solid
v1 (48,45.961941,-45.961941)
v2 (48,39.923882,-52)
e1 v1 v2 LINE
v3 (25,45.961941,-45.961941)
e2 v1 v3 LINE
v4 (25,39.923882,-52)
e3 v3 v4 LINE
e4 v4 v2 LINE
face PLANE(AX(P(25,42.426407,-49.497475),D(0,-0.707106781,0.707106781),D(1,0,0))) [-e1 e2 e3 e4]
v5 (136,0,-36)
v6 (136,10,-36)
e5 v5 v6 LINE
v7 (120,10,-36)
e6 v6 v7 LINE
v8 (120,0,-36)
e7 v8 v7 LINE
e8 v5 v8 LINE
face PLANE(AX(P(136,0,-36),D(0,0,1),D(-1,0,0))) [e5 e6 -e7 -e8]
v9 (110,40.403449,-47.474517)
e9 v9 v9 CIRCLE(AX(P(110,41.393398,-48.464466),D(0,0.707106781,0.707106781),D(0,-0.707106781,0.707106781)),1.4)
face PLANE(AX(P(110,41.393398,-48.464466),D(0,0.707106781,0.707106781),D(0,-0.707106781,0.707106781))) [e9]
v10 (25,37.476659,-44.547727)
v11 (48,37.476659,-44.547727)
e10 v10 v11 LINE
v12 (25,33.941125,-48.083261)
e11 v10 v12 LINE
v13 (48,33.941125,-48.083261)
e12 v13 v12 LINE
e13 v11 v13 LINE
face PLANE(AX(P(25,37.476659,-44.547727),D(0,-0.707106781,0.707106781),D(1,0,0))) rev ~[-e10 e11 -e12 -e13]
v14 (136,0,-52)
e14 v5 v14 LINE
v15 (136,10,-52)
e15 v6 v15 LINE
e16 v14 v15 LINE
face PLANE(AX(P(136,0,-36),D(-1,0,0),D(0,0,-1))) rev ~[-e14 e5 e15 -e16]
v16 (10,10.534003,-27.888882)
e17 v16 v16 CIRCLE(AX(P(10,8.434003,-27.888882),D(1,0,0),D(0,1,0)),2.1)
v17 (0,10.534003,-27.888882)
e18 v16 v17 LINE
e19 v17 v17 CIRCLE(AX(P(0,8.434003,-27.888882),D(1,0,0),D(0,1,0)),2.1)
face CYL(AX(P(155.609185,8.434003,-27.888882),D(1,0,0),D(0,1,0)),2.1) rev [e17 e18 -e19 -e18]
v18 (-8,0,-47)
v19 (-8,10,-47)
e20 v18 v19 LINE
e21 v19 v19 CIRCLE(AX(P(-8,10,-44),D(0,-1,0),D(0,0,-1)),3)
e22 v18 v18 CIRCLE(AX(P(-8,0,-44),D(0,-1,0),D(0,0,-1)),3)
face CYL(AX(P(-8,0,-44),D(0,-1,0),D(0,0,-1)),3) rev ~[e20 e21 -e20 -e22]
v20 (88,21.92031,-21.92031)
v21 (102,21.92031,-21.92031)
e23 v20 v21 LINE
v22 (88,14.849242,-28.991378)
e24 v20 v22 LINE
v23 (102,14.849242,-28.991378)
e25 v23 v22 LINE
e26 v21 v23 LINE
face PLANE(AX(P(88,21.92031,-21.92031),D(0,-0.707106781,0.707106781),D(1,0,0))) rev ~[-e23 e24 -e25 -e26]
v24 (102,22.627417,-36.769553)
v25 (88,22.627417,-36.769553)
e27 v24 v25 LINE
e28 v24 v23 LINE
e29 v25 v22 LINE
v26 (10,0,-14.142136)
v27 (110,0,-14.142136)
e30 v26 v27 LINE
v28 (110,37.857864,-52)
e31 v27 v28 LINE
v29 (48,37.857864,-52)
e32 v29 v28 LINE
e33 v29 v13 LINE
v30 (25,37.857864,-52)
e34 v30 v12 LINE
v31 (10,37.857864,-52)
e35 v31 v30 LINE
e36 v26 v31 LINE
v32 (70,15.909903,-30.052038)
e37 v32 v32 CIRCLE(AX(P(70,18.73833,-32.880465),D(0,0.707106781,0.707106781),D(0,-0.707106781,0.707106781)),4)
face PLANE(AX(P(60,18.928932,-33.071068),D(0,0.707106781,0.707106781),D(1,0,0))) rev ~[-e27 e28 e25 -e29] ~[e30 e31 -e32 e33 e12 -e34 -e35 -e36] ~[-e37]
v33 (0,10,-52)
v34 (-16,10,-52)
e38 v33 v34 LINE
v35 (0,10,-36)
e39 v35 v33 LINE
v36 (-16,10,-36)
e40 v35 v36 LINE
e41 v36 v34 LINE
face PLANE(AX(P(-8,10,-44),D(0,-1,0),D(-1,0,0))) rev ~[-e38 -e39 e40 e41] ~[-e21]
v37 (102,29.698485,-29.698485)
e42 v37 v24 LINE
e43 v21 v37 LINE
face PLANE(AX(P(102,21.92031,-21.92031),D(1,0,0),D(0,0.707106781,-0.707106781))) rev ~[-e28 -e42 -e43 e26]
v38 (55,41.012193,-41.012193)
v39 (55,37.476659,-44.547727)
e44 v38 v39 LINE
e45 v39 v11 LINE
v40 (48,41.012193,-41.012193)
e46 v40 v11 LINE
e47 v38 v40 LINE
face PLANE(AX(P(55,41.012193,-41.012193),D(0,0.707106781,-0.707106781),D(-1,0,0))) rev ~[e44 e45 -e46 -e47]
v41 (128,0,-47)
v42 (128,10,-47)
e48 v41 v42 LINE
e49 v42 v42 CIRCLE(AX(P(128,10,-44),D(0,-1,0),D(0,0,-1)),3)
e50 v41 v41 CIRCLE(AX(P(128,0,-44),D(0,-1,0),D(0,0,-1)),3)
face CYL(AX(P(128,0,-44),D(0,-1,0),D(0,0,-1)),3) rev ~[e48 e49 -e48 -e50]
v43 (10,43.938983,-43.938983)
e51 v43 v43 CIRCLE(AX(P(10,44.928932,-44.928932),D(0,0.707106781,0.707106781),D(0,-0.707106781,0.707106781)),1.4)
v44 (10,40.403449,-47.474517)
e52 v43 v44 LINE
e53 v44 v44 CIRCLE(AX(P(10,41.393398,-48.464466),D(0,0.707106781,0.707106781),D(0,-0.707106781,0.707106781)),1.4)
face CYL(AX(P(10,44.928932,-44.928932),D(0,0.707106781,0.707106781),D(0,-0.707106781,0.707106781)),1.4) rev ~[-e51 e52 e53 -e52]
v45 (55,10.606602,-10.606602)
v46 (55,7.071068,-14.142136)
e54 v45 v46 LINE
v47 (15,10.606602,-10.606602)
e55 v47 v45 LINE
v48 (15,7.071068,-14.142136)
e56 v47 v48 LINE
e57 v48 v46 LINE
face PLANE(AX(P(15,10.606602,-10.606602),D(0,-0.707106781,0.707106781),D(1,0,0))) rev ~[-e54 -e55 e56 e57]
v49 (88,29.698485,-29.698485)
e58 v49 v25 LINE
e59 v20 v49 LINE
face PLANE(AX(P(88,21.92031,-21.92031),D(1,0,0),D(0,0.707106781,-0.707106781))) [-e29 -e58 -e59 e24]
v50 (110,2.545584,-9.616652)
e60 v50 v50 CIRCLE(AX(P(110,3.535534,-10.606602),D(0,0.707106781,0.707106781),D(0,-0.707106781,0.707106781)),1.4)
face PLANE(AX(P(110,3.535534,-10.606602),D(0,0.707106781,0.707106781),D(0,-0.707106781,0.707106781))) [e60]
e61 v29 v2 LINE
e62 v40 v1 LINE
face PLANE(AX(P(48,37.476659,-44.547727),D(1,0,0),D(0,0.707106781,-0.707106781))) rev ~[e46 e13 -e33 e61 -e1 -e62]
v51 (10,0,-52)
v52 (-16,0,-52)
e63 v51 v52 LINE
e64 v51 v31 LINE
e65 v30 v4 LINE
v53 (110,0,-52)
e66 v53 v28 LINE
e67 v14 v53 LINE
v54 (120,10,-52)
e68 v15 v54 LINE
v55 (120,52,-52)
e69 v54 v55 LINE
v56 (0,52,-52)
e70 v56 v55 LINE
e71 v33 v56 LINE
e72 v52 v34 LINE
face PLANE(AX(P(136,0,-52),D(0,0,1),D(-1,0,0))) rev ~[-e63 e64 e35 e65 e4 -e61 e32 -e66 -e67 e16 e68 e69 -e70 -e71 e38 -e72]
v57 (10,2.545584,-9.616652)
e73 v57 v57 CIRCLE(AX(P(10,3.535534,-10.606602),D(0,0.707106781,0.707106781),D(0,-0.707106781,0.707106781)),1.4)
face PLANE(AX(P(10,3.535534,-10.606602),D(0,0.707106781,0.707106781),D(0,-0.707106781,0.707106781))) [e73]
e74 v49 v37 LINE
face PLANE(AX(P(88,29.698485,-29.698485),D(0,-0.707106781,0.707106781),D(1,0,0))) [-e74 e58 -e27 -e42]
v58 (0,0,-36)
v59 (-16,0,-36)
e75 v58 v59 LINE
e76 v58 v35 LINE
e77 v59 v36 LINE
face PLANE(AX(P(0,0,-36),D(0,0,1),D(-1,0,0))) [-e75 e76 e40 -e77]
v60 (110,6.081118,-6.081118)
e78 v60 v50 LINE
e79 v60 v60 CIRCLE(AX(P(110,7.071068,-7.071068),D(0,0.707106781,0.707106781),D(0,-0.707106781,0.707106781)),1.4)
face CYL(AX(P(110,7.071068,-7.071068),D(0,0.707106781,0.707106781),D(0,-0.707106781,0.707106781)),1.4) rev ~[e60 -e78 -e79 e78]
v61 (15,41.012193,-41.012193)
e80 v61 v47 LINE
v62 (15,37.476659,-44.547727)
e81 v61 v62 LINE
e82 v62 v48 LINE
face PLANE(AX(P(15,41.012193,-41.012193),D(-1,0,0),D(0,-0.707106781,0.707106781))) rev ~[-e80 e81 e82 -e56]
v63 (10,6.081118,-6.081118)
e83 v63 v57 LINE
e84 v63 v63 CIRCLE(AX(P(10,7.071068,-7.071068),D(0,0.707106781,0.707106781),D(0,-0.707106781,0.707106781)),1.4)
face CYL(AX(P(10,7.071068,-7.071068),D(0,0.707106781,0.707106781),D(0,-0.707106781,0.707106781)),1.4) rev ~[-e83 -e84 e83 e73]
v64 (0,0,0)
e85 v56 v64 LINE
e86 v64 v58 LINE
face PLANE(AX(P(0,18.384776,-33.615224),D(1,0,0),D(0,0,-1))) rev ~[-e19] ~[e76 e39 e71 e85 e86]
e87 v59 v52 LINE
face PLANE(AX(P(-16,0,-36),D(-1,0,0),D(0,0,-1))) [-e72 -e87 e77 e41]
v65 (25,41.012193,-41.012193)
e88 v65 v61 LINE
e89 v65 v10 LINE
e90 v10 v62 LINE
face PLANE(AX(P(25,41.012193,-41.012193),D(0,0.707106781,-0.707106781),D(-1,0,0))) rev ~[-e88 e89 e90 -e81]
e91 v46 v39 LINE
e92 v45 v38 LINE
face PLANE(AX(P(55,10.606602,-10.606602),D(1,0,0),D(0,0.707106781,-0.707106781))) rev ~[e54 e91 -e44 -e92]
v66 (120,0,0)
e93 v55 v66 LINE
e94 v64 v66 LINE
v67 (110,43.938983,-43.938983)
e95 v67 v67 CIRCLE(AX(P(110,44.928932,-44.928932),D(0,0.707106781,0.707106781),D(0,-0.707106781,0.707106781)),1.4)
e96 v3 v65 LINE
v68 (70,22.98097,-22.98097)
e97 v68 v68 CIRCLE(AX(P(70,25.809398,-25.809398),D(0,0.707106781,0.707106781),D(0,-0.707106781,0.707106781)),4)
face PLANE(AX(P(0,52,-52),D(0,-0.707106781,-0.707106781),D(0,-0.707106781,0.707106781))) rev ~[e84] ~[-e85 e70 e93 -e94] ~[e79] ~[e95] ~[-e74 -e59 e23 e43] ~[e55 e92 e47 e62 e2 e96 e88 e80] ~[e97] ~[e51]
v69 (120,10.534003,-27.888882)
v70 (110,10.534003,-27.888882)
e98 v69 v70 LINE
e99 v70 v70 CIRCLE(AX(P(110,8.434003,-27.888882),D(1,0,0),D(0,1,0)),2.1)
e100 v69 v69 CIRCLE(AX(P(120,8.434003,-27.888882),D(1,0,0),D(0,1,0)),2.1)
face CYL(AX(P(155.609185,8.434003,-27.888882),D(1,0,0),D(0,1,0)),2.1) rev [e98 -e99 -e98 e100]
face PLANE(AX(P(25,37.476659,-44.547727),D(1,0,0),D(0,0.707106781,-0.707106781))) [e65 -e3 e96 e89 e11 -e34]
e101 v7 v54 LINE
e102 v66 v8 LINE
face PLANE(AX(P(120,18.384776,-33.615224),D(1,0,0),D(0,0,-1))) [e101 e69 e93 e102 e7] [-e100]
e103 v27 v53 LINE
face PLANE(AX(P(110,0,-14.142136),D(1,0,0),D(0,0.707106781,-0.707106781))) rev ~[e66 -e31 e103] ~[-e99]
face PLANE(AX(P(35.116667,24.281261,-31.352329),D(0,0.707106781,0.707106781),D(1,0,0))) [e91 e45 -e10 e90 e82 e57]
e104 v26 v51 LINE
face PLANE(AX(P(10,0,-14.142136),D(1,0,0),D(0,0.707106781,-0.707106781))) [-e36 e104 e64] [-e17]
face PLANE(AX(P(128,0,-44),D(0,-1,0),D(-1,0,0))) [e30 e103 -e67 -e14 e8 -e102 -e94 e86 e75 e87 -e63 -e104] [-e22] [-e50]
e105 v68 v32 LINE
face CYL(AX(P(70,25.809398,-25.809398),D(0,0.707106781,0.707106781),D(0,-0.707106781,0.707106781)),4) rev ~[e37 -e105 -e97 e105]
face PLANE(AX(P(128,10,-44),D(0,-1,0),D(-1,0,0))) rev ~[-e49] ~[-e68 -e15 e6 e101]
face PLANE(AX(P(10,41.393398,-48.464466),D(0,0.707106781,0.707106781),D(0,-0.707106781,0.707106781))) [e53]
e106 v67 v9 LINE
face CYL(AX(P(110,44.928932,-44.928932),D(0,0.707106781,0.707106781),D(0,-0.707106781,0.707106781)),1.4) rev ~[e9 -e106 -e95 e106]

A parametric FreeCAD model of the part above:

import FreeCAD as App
import Part
import Sketcher


def add_polygon(sketch, points):
    """Adds a closed chain of lines whose ends are joined by coincident constraints."""
    first, n = sketch.GeometryCount, len(points)
    for a, b in zip(points, points[1:] + points[:1]):
        sketch.addGeometry(Part.LineSegment(App.Vector(*a, 0), App.Vector(*b, 0)), False)
    for i in range(n):
        sketch.addConstraint(Sketcher.Constraint("Coincident", first + i, 2, first + (i + 1) % n, 1))

doc = App.newDocument("Part")
body = doc.addObject("PartDesign::Body", "Body")

# Sketch on YZ plane
sketch1 = doc.addObject("Sketcher::SketchObject", "Sketch")
body.addObject(sketch1)
sketch1.AttachmentSupport = (doc.YZ_Plane, [""])
sketch1.MapMode = "FlatFace"
add_polygon(sketch1, [(0, 0), (0, -52), (52, -52)])  # lines 0-2
sketch1.addConstraint([
    Sketcher.Constraint("Vertical", 0),
    Sketcher.Constraint("Horizontal", 1),
    Sketcher.Constraint("Coincident", 2, 2, -1, 1),
    Sketcher.Constraint("Equal", 1, 0),
    Sketcher.Constraint("DistanceX", 1, 1, 1, 2, 52.0),
])
pad1 = doc.addObject("PartDesign::Pad", "Pad")
body.addObject(pad1)
pad1.Profile = sketch1
pad1.Length = 120

# Sketch on an angled plane
sketch2 = doc.addObject("Sketcher::SketchObject", "Sketch001")
body.addObject(sketch2)
sketch2.Placement = App.Placement(App.Vector(0, 0, 0), App.Rotation(App.Vector(1, 0, 0), App.Vector(0, 0.707106781, -0.707106781), App.Vector(0, 0.707106781, 0.707106781), "ZXY"))
sketch2.addGeometry(Part.Circle(App.Vector(70, 36.5, 0), App.Vector(0, 0, 1), 4), False)  # 0
add_polygon(sketch2, [(88, 42), (88, 31), (102, 31), (102, 42)])  # lines 1-4
sketch2.addConstraint([
    Sketcher.Constraint("Vertical", 1),
    Sketcher.Constraint("Horizontal", 2),
    Sketcher.Constraint("Vertical", 3),
    Sketcher.Constraint("Horizontal", 4),
    Sketcher.Constraint("Diameter", 0, 8.0),
    Sketcher.Constraint("DistanceX", 2, 1, 2, 2, 14.0),
    Sketcher.Constraint("DistanceY", 1, 2, 1, 1, 11.0),
    Sketcher.Constraint("DistanceX", -1, 1, 0, 3, 70.0),
    Sketcher.Constraint("DistanceX", -1, 1, 1, 2, 88.0),
    Sketcher.Constraint("DistanceY", -1, 1, 1, 2, 31.0),
    Sketcher.Constraint("DistanceY", -1, 1, 0, 3, 36.5),
])
pocket1 = doc.addObject("PartDesign::Pocket", "Pocket")
body.addObject(pocket1)
pocket1.Profile = sketch2
pocket1.Length = 120

# Sketch on an angled plane
sketch3 = doc.addObject("Sketcher::SketchObject", "Sketch002")
body.addObject(sketch3)
sketch3.Placement = App.Placement(App.Vector(0, 0, 0), App.Rotation(App.Vector(1, 0, 0), App.Vector(0, 0.707106781, -0.707106781), App.Vector(0, 0.707106781, 0.707106781), "ZXY"))
add_polygon(sketch3, [(48, 58), (48, 65), (25, 65), (25, 58), (15, 58), (15, 15), (55, 15), (55, 58)])  # lines 0-7
sketch3.addConstraint([
    Sketcher.Constraint("Vertical", 0),
    Sketcher.Constraint("Horizontal", 1),
    Sketcher.Constraint("Vertical", 2),
    Sketcher.Constraint("Horizontal", 3),
    Sketcher.Constraint("Vertical", 4),
    Sketcher.Constraint("Horizontal", 5),
    Sketcher.Constraint("Vertical", 6),
    Sketcher.Constraint("Horizontal", 7),
    Sketcher.Constraint("Horizontal", 3, 2, 6, 2),
    Sketcher.Constraint("Equal", 7, 0),
    Sketcher.Constraint("DistanceX", 1, 2, 1, 1, 23.0),
    Sketcher.Constraint("DistanceX", 3, 2, 3, 1, 10.0),
    Sketcher.Constraint("DistanceX", 5, 1, 5, 2, 40.0),
    Sketcher.Constraint("DistanceY", 4, 2, 4, 1, 43.0),
    Sketcher.Constraint("DistanceX", -1, 1, 0, 2, 48.0),
    Sketcher.Constraint("DistanceY", -1, 1, 0, 2, 65.0),
])
pocket2 = doc.addObject("PartDesign::Pocket", "Pocket001")
body.addObject(pocket2)
pocket2.Profile = sketch3
pocket2.Length = 5

# Sketch on an angled plane
sketch4 = doc.addObject("Sketcher::SketchObject", "Sketch003")
body.addObject(sketch4)
sketch4.Placement = App.Placement(App.Vector(0, -3.535534, -3.535534), App.Rotation(App.Vector(1, 0, 0), App.Vector(0, 0.707106781, -0.707106781), App.Vector(0, 0.707106781, 0.707106781), "ZXY"))
add_polygon(sketch4, [(25, 65), (25, 58), (48, 58), (48, 65)])  # lines 0-3
sketch4.addConstraint([
    Sketcher.Constraint("Vertical", 0),
    Sketcher.Constraint("Horizontal", 1),
    Sketcher.Constraint("Vertical", 2),
    Sketcher.Constraint("Horizontal", 3),
    Sketcher.Constraint("DistanceX", 1, 1, 1, 2, 23.0),
    Sketcher.Constraint("DistanceY", 0, 2, 0, 1, 7.0),
    Sketcher.Constraint("DistanceX", -1, 1, 0, 2, 25.0),
    Sketcher.Constraint("DistanceY", -1, 1, 0, 2, 58.0),
])
pocket3 = doc.addObject("PartDesign::Pocket", "Pocket002")
body.addObject(pocket3)
pocket3.Profile = sketch4
pocket3.Length = 98

# Sketch on an angled plane
sketch5 = doc.addObject("Sketcher::SketchObject", "Sketch004")
body.addObject(sketch5)
sketch5.Placement = App.Placement(App.Vector(0, -7.071068, -7.071068), App.Rotation(App.Vector(1, 0, 0), App.Vector(0, 0.707106781, -0.707106781), App.Vector(0, 0.707106781, 0.707106781), "ZXY"))
add_polygon(sketch5, [(10, 63.539105), (10, 10), (110, 10), (110, 63.539105)])  # lines 0-3
sketch5.addConstraint([
    Sketcher.Constraint("Vertical", 0),
    Sketcher.Constraint("Horizontal", 1),
    Sketcher.Constraint("Vertical", 2),
    Sketcher.Constraint("Horizontal", 3),
    Sketcher.Constraint("DistanceX", 1, 1, 1, 2, 100.0),
    Sketcher.Constraint("DistanceX", -1, 1, 0, 2, 10.0),
    Sketcher.Constraint("DistanceY", -1, 1, 0, 2, 10.0),
    Sketcher.Constraint("DistanceY", 0, 2, 0, 1, 53.539105),
])
pocket4 = doc.addObject("PartDesign::Pocket", "Pocket003")
body.addObject(pocket4)
pocket4.Profile = sketch5
pocket4.Length = 98

# Sketch on an angled plane
sketch6 = doc.addObject("Sketcher::SketchObject", "Sketch005")
body.addObject(sketch6)
sketch6.Placement = App.Placement(App.Vector(0, 0, 0), App.Rotation(App.Vector(1, 0, 0), App.Vector(0, 0.707106781, -0.707106781), App.Vector(0, 0.707106781, 0.707106781), "ZXY"))
sketch6.addGeometry([
    Part.Circle(App.Vector(10, 63.539105, 0), App.Vector(0, 0, 1), 1.4),
    Part.Circle(App.Vector(110, 10, 0), App.Vector(0, 0, 1), 1.4),
    Part.Circle(App.Vector(110, 63.539105, 0), App.Vector(0, 0, 1), 1.4),
    Part.Circle(App.Vector(10, 10, 0), App.Vector(0, 0, 1), 1.4),
], False)
sketch6.addConstraint([
    Sketcher.Constraint("Equal", 0, 1),
    Sketcher.Constraint("Equal", 1, 2),
    Sketcher.Constraint("Equal", 2, 3),
    Sketcher.Constraint("Horizontal", 0, 3, 2, 3),
    Sketcher.Constraint("Horizontal", 1, 3, 3, 3),
    Sketcher.Constraint("Vertical", 1, 3, 2, 3),
    Sketcher.Constraint("Vertical", 0, 3, 3, 3),
    Sketcher.Constraint("Diameter", 0, 2.8),
    Sketcher.Constraint("DistanceX", -1, 1, 0, 3, 10.0),
    Sketcher.Constraint("DistanceX", -1, 1, 1, 3, 110.0),
    Sketcher.Constraint("DistanceY", -1, 1, 1, 3, 10.0),
    Sketcher.Constraint("DistanceY", -1, 1, 0, 3, 63.539105),
])
pocket5 = doc.addObject("PartDesign::Pocket", "Pocket004")
body.addObject(pocket5)
pocket5.Profile = sketch6
pocket5.Length = 5

# Sketch on XZ plane
sketch7 = doc.addObject("Sketcher::SketchObject", "Sketch006")
body.addObject(sketch7)
sketch7.AttachmentSupport = (doc.XZ_Plane, [""])
sketch7.MapMode = "FlatFace"
add_polygon(sketch7, [(136, -52), (136, -36), (120, -36), (120, -52)])  # lines 0-3
sketch7.addGeometry(Part.Circle(App.Vector(128, -44, 0), App.Vector(0, 0, 1), 3), False)  # 4
add_polygon(sketch7, [(0, -52), (0, -36), (-16, -36), (-16, -52)])  # lines 5-8
sketch7.addGeometry(Part.Circle(App.Vector(-8, -44, 0), App.Vector(0, 0, 1), 3), False)  # 9
sketch7.addConstraint([
    Sketcher.Constraint("Vertical", 0),
    Sketcher.Constraint("Horizontal", 1),
    Sketcher.Constraint("Vertical", 2),
    Sketcher.Constraint("Horizontal", 3),
    Sketcher.Constraint("Vertical", 5),
    Sketcher.Constraint("Horizontal", 6),
    Sketcher.Constraint("Vertical", 7),
    Sketcher.Constraint("Horizontal", 8),
    Sketcher.Constraint("Equal", 4, 9),
    Sketcher.Constraint("PointOnObject", 5, 2, -2),
    Sketcher.Constraint("Horizontal", 4, 3, 9, 3),
    Sketcher.Constraint("Horizontal", 1, 2, 5, 2),
    Sketcher.Constraint("Horizontal", 3, 2, 7, 2),
    Sketcher.Constraint("Equal", 3, 6),
    Sketcher.Constraint("Equal", 8, 0),
    Sketcher.Constraint("Diameter", 4, 6.0),
    Sketcher.Constraint("DistanceX", 1, 2, 1, 1, 16.0),
    Sketcher.Constraint("DistanceX", -1, 1, 4, 3, 128.0),
    Sketcher.Constraint("DistanceY", 4, 3, -1, 1, 44.0),
    Sketcher.Constraint("DistanceX", 9, 3, -1, 1, 8.0),
    Sketcher.Constraint("DistanceX", -1, 1, 0, 2, 136.0),
    Sketcher.Constraint("DistanceY", 0, 2, -1, 1, 36.0),
])
pad2 = doc.addObject("PartDesign::Pad", "Pad001")
body.addObject(pad2)
pad2.Profile = sketch7
pad2.Length = 10
pad2.Reversed = True

# Sketch on YZ plane
sketch8 = doc.addObject("Sketcher::SketchObject", "Sketch007")
body.addObject(sketch8)
sketch8.AttachmentSupport = (doc.YZ_Plane, [""])
sketch8.MapMode = "FlatFace"
sketch8.addGeometry(Part.Circle(App.Vector(8.434003, -27.888882, 0), App.Vector(0, 0, 1), 2.1), False)
sketch8.addConstraint([
    Sketcher.Constraint("Diameter", 0, 4.2),
    Sketcher.Constraint("DistanceY", 0, 3, -1, 1, 27.888882),
    Sketcher.Constraint("DistanceX", -1, 1, 0, 3, 8.434003),
])
pocket6 = doc.addObject("PartDesign::Pocket", "Pocket005")
body.addObject(pocket6)
pocket6.Profile = sketch8
pocket6.Type = "ThroughAll"
pocket6.Midplane = True

doc.recompute()
